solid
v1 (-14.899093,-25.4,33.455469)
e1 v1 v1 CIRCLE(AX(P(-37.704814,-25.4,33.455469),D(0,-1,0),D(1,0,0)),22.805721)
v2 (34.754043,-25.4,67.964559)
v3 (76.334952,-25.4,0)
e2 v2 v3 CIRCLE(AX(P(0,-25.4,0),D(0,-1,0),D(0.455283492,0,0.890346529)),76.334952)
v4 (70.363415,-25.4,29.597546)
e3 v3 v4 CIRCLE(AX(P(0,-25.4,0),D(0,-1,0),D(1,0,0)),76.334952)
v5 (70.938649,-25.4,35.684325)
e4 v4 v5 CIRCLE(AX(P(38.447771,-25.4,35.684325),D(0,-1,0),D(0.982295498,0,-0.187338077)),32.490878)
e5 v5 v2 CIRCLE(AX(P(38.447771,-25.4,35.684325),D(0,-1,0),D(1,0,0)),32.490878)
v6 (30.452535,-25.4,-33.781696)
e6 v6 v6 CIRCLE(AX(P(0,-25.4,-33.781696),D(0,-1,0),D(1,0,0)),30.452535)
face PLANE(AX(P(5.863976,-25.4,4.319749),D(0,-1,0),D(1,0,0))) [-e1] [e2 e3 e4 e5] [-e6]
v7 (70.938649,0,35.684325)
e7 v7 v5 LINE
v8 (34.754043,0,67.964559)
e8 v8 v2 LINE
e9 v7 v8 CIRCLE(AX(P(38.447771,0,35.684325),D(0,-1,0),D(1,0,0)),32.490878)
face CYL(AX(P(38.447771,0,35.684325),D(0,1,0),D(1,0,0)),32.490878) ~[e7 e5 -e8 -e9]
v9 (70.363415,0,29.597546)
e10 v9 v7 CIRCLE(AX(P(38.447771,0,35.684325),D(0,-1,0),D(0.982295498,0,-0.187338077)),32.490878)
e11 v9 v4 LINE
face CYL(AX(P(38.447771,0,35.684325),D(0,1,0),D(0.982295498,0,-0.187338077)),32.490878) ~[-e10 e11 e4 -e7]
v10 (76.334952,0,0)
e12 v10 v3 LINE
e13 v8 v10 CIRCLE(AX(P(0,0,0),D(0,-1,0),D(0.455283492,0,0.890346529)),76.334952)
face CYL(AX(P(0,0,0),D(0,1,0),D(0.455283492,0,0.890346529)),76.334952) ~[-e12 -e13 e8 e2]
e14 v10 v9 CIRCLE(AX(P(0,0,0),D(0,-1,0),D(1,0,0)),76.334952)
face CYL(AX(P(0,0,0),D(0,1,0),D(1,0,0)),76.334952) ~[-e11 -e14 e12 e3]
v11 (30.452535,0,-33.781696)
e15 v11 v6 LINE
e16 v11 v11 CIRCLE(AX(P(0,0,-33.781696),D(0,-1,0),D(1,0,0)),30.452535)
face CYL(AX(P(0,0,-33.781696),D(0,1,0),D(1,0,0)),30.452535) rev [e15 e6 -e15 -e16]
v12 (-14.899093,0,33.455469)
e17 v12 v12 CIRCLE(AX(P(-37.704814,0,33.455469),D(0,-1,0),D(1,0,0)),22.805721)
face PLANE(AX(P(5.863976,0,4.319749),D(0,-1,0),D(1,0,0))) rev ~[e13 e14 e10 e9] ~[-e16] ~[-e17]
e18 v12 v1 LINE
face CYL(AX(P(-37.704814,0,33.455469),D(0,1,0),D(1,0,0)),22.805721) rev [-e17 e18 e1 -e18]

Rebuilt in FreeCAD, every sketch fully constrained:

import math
import FreeCAD as App
import Part
import Sketcher
from FreeCAD import Vector
Q = App.Units.Quantity

doc = App.newDocument("Part")
body = doc.addObject("PartDesign::Body", "Body")

# Sketch on XZ plane
sketch1 = body.newObject("Sketcher::SketchObject", "Sketch")
sketch1.AttachmentSupport = (doc.getObject("XZ_Plane"), [""])
sketch1.MapMode = "FlatFace"
sketch1.addGeometry([
    Part.ArcOfCircle(Part.Circle(Vector(0, 0, 0), Vector(0, 0, 1), 76), math.radians(63), math.radians(360)),  # 0
    Part.ArcOfCircle(Part.Circle(Vector(0, 0, 0), Vector(0, 0, 1), 76), math.radians(0), math.radians(23)),  # 1
    Part.ArcOfCircle(Part.Circle(Vector(38, 36, 0), Vector(0, 0, 1), 32), math.radians(-10.8), math.radians(0)),  # 2
    Part.ArcOfCircle(Part.Circle(Vector(38, 36, 0), Vector(0, 0, 1), 32), math.radians(0), math.radians(97)),  # 3
    Part.Circle(Vector(0, -34, 0), Vector(0, 0, 1), 30),  # 4
    Part.Circle(Vector(-38, 33, 0), Vector(0, 0, 1), 23),  # 5
], False)
sketch1.addConstraint([
    Sketcher.Constraint("Tangent", 0, 2, 1, 1),
    Sketcher.Constraint("Coincident", 1, 2, 2, 1),
    Sketcher.Constraint("Tangent", 2, 2, 3, 1),
    Sketcher.Constraint("Coincident", 3, 2, 0, 1),
    Sketcher.Constraint("Coincident", 0, 3, -1, 1),
    Sketcher.Constraint("Equal", 0, 1),
    Sketcher.Constraint("Equal", 2, 3),
    Sketcher.Constraint("PointOnObject", 4, 3, -2),
    Sketcher.Constraint("PointOnObject", 0, 2, -1),
    Sketcher.Constraint("Horizontal", 3, 3, 2, 2),
    Sketcher.Constraint("Diameter", 4, 60.905071),
    Sketcher.Constraint("Diameter", 5, 45.611442),
    Sketcher.Constraint("Radius", 0, 76.334952),
    Sketcher.Constraint("Radius", 2, 32.490878),
    Sketcher.Constraint("DistanceX", 1, 2, 0, 2, Q("0.2350999 in")),
    Sketcher.Constraint("DistanceX", -1, 1, 2, 3, 38.447771),
    Sketcher.Constraint("DistanceY", -1, 1, 5, 3, 33.455469),
    Sketcher.Constraint("DistanceY", 4, 3, 3, 3, 69.466021),
    Sketcher.Constraint("DistanceX", 5, 3, -1, 1, 37.704814),
])
pad1 = body.newObject("PartDesign::Pad", "Pad")
pad1.Profile = sketch1
pad1.Length = Q("1 in")

doc.recompute()
